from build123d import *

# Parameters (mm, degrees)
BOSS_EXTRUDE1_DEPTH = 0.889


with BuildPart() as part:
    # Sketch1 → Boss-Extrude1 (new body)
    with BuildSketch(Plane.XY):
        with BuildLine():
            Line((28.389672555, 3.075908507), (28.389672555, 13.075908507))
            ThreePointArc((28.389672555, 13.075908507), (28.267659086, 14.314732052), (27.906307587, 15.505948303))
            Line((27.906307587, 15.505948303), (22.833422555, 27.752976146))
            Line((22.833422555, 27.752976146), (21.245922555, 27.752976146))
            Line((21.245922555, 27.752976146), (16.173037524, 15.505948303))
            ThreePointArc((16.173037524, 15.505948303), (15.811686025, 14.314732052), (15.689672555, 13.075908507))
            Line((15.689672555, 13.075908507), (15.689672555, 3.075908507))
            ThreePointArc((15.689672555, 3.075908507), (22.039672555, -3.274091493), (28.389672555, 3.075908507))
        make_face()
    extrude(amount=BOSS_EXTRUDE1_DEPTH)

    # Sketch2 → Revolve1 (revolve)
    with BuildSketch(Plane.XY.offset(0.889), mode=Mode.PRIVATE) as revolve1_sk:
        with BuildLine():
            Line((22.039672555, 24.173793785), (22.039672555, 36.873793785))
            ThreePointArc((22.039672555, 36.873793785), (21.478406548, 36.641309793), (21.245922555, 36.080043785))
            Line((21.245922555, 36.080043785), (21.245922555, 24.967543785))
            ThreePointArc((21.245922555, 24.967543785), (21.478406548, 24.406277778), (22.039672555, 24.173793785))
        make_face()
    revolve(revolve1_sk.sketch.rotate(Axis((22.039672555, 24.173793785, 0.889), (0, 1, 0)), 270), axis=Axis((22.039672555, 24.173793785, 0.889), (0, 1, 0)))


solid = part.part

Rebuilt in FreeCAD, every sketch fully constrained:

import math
import FreeCAD as App
import Part
import Sketcher
Q = App.Units.Quantity

doc = App.newDocument("Part")
body = doc.addObject("PartDesign::Body", "Body")

sketch1 = doc.addObject("Sketcher::SketchObject", "Sketch")
body.addObject(sketch1)
sketch1.AttachmentSupport = (doc.XY_Plane, [""])
sketch1.MapMode = "FlatFace"
sketch1.addGeometry([
    Part.LineSegment(App.Vector(28.4, 3.1, 0), App.Vector(28.4, 13.1, 0)),
    Part.ArcOfCircle(Part.Circle(App.Vector(22, 13.1, 0), App.Vector(0, 0, 1), 6.3), math.radians(0), math.radians(22)),
    Part.LineSegment(App.Vector(27.9, 15.5, 0), App.Vector(22.8, 27.8, 0)),
    Part.LineSegment(App.Vector(22.8, 27.8, 0), App.Vector(21.2, 27.8, 0)),
    Part.LineSegment(App.Vector(21.2, 27.8, 0), App.Vector(16.2, 15.5, 0)),
    Part.ArcOfCircle(Part.Circle(App.Vector(22, 13.1, 0), App.Vector(0, 0, 1), 6.4), math.radians(158), math.radians(180)),
    Part.LineSegment(App.Vector(15.7, 13.1, 0), App.Vector(15.7, 3.1, 0)),
    Part.ArcOfCircle(Part.Circle(App.Vector(22, 3.1, 0), App.Vector(0, 0, 1), 6.3), math.radians(180), math.radians(360)),
], False)
sketch1.addConstraint([
    Sketcher.Constraint("Tangent", 0, 2, 1, 1),
    Sketcher.Constraint("Tangent", 1, 2, 2, 1),
    Sketcher.Constraint("Coincident", 2, 2, 3, 1),
    Sketcher.Constraint("Coincident", 3, 2, 4, 1),
    Sketcher.Constraint("Tangent", 4, 2, 5, 1),
    Sketcher.Constraint("Tangent", 5, 2, 6, 1),
    Sketcher.Constraint("Tangent", 6, 2, 7, 1),
    Sketcher.Constraint("Tangent", 7, 2, 0, 1),
    Sketcher.Constraint("Vertical", 0),
    Sketcher.Constraint("Horizontal", 3),
    Sketcher.Constraint("Vertical", 6),
    Sketcher.Constraint("Coincident", 5, 3, 1, 3),
    Sketcher.Constraint("Equal", 1, 5),
    Sketcher.Constraint("Horizontal", 1, 2, 4, 2),
    Sketcher.Constraint("Radius", 1, Q("0.25 in")),
    Sketcher.Constraint("Angle", 2, Q("112.5 deg")),
    Sketcher.Constraint("DistanceX", 3, 2, 3, 1, Q("0.0625 in")),
    Sketcher.Constraint("DistanceY", 0, 1, 0, 2, 10.0),
    Sketcher.Constraint("DistanceY", -1, 1, 1, 3, 13.075909),
    Sketcher.Constraint("DistanceX", -1, 1, 1, 3, 22.039673),
])
pad1 = doc.addObject("PartDesign::Pad", "Pad")
body.addObject(pad1)
pad1.Profile = sketch1
pad1.Length = Q("0.035 in")

sketch2 = doc.addObject("Sketcher::SketchObject", "Sketch001")
body.addObject(sketch2)
sketch2.AttachmentSupport = (doc.XY_Plane, [""])
sketch2.MapMode = "FlatFace"
sketch2.AttachmentOffset = App.Placement(App.Vector(0, 0, 0.035 * 25.4), App.Rotation())
sketch2.addGeometry([
    Part.LineSegment(App.Vector(22, 24.2, 0), App.Vector(22, 36.9, 0)),
    Part.ArcOfCircle(Part.Circle(App.Vector(22, 36.1, 0), App.Vector(0, 0, 1), 0.8), math.radians(90), math.radians(180)),
    Part.LineSegment(App.Vector(21.2, 36.1, 0), App.Vector(21.2, 25, 0)),
    Part.ArcOfCircle(Part.Circle(App.Vector(22, 25, 0), App.Vector(0, 0, 1), 0.8), math.radians(-180), math.radians(-90)),
], False)
sketch2.addGeometry(Part.LineSegment(App.Vector(22, 24.2, 0), App.Vector(22, 36.9, 0)), True)
sketch2.addConstraint([
    Sketcher.Constraint("Coincident", 0, 2, 1, 1),
    Sketcher.Constraint("Tangent", 1, 2, 2, 1),
    Sketcher.Constraint("Tangent", 2, 2, 3, 1),
    Sketcher.Constraint("Coincident", 3, 2, 0, 1),
    Sketcher.Constraint("Vertical", 0),
    Sketcher.Constraint("Vertical", 2),
    Sketcher.Constraint("Vertical", 4),
    Sketcher.Constraint("Coincident", 4, 1, 3, 2),
    Sketcher.Constraint("Equal", 1, 3),
    Sketcher.Constraint("Vertical", 3, 3, 0, 2),
    Sketcher.Constraint("Equal", 0, 4),
    Sketcher.Constraint("DistanceY", 0, 1, 0, 2, Q("0.5 in")),
    Sketcher.Constraint("Radius", 1, Q("0.03125 in")),
    Sketcher.Constraint("DistanceX", -1, 1, 1, 3, 22.039673),
    Sketcher.Constraint("DistanceY", -1, 1, 1, 3, 36.080044),
])
revolution = doc.addObject("PartDesign::Revolution", "Revolution")
body.addObject(revolution)
revolution.Profile = sketch2
revolution.ReferenceAxis = (sketch2, ["Axis0"])
revolution.Angle = 360

doc.recompute()
